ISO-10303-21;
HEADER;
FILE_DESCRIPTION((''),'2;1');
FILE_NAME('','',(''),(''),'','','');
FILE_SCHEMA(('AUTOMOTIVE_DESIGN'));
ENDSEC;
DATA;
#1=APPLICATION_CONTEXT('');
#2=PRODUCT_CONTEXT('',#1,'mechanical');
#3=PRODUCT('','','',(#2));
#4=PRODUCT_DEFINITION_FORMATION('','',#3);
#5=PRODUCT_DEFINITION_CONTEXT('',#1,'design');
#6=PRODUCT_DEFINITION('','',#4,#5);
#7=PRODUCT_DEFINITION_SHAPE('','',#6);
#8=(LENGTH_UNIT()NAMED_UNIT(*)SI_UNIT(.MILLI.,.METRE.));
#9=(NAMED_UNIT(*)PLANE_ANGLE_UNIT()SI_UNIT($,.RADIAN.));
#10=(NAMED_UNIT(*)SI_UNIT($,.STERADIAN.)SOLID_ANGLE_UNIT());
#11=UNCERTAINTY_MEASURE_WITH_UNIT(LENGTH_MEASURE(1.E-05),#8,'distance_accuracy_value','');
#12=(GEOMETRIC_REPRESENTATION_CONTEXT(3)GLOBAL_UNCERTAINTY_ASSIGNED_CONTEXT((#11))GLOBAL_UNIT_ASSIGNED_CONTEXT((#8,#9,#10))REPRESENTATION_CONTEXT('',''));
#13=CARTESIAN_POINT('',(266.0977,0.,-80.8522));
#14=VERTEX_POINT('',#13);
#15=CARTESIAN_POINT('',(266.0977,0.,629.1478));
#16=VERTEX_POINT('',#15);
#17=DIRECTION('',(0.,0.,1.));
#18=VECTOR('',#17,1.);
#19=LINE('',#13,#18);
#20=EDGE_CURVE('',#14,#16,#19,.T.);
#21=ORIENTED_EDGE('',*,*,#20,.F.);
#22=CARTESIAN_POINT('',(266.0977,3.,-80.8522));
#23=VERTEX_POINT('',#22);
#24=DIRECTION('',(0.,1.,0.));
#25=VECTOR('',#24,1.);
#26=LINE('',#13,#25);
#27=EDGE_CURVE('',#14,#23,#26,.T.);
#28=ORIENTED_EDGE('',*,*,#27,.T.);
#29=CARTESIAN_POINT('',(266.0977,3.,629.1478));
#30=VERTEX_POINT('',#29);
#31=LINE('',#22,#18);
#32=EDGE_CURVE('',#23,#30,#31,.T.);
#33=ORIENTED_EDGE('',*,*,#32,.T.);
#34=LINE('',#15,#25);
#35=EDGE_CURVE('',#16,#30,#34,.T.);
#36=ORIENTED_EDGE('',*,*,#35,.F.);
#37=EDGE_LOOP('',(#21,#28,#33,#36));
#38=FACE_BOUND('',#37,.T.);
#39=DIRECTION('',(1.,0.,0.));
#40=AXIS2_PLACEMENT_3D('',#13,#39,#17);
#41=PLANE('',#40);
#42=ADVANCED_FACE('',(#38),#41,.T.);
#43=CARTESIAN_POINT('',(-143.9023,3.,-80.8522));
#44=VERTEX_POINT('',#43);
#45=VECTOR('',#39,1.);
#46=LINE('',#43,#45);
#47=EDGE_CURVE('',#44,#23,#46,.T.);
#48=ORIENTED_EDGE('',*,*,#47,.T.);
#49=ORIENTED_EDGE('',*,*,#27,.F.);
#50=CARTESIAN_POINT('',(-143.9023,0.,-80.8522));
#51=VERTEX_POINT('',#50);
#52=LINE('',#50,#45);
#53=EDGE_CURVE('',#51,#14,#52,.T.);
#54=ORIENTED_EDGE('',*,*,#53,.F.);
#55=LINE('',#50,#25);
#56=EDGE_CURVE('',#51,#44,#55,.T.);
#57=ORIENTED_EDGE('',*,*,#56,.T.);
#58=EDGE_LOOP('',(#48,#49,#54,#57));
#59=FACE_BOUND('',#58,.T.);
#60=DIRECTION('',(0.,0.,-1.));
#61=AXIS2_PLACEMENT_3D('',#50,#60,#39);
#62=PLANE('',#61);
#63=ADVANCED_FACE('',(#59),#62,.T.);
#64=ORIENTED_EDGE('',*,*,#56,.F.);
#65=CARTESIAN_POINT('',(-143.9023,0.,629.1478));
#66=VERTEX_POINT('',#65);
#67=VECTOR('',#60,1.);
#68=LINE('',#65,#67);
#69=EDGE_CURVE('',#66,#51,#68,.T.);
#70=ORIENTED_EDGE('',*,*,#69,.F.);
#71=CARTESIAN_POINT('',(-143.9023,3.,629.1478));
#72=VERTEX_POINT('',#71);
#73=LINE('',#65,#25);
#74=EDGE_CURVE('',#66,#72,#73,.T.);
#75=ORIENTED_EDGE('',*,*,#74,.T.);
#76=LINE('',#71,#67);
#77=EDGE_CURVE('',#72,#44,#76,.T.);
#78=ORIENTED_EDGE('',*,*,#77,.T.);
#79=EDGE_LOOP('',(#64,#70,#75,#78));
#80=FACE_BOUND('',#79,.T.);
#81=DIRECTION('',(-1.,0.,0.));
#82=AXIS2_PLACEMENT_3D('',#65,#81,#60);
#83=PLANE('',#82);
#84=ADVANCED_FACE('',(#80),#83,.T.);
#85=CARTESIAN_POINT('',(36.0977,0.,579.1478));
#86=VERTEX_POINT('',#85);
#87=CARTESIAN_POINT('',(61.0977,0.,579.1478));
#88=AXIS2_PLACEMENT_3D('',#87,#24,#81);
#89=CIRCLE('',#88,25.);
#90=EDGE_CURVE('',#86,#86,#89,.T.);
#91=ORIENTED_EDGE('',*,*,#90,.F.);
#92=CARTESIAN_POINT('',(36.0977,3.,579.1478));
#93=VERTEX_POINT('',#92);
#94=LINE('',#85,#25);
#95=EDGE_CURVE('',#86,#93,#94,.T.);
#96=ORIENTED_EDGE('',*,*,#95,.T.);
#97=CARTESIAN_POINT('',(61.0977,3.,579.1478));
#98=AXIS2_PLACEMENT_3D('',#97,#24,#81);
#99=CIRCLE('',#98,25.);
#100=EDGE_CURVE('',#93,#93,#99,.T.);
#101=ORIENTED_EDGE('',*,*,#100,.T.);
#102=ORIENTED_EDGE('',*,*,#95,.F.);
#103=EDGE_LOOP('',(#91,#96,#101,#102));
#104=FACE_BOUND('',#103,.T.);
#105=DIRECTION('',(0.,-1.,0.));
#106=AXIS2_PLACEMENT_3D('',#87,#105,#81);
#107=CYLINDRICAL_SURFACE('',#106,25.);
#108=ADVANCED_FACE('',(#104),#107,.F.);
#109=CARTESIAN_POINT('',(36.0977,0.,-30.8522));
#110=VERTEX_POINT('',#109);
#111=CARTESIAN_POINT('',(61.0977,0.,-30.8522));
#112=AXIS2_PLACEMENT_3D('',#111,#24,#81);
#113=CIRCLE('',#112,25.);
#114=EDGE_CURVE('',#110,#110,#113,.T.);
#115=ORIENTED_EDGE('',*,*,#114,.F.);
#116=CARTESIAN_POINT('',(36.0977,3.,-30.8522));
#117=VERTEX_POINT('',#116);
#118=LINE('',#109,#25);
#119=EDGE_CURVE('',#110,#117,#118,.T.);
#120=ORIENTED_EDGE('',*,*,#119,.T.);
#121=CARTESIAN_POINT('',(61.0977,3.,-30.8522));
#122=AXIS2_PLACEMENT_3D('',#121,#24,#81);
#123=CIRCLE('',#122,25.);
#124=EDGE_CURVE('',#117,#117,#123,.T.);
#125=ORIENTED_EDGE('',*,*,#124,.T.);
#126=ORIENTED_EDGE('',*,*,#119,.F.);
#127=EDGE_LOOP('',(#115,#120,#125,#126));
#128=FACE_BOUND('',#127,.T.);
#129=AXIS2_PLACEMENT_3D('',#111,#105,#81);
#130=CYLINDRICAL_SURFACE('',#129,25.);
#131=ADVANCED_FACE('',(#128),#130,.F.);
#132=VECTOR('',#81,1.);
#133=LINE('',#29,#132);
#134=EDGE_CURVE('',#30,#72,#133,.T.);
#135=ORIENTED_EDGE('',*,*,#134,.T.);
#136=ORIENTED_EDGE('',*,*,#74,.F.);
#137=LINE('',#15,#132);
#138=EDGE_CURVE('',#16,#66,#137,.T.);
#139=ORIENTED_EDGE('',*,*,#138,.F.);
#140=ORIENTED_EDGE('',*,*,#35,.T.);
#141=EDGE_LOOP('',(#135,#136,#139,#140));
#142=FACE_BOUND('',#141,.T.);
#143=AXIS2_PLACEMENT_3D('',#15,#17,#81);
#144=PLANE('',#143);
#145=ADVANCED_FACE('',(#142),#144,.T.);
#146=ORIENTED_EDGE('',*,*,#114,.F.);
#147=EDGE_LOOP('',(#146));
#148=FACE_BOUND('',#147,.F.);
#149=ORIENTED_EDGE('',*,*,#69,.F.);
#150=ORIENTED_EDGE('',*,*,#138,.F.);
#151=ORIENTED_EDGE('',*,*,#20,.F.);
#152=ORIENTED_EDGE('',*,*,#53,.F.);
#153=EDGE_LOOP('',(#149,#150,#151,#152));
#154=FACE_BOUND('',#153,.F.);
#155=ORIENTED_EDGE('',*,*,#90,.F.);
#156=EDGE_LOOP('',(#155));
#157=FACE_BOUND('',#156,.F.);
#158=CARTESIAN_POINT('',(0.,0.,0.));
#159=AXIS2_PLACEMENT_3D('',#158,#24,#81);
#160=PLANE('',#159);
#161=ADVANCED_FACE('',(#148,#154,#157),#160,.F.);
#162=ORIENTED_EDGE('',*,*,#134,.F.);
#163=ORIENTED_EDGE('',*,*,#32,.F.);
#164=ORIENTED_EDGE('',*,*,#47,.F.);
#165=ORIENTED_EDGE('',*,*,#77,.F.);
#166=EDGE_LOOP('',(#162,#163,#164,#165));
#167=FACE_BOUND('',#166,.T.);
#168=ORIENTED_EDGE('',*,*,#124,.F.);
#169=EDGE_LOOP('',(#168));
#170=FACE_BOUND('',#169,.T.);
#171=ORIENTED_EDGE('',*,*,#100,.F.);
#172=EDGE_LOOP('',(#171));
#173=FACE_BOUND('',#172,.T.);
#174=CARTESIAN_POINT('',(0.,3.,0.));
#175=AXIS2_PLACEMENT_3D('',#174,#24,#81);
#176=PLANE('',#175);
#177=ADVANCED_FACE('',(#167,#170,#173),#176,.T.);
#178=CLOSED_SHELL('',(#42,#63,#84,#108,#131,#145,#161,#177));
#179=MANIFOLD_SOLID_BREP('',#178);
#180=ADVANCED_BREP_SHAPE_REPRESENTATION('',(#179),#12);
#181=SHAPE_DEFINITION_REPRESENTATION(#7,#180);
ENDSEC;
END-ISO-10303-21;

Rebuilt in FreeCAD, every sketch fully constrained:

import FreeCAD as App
import Part
import Sketcher

V = App.Vector

doc = App.newDocument("Part")
params = doc.addObject("Spreadsheet::Sheet", "Params")
for row, (alias, value) in enumerate([
    ("sketch1_diameter", "50 mm"),
    ("sketch1_width", "410 mm"),
    ("sketch1_height", "710 mm"),
    ("pad1_length", "3 mm"),
], start=1):
    params.set(f"A{row}", alias)
    params.set(f"B{row}", "=" + value)
    params.setAlias(f"B{row}", alias)

body = doc.addObject("PartDesign::Body", "Body")

# Sketch on XZ plane
sketch1 = doc.addObject("Sketcher::SketchObject", "Sketch")
body.addObject(sketch1)
sketch1.AttachmentSupport = (doc.XZ_Plane, [""])
sketch1.MapMode = "FlatFace"
sketch1.addGeometry(Part.LineSegment(V(-144, 629, 0), V(266, 629, 0)), False)
sketch1.addGeometry(Part.LineSegment(V(266, 629, 0), V(266, -81, 0)), False)
sketch1.addGeometry(Part.LineSegment(V(266, -81, 0), V(-144, -81, 0)), False)
sketch1.addGeometry(Part.LineSegment(V(-144, -81, 0), V(-144, 629, 0)), False)
sketch1.addGeometry(Part.Circle(V(61, -31, 0), V(0, 0, 1), 25), False)
sketch1.addGeometry(Part.Circle(V(61, 579, 0), V(0, 0, 1), 25), False)
sketch1.addConstraint(Sketcher.Constraint("Coincident", 0, 2, 1, 1))
sketch1.addConstraint(Sketcher.Constraint("Coincident", 1, 2, 2, 1))
sketch1.addConstraint(Sketcher.Constraint("Coincident", 2, 2, 3, 1))
sketch1.addConstraint(Sketcher.Constraint("Coincident", 3, 2, 0, 1))
sketch1.addConstraint(Sketcher.Constraint("Horizontal", 0))
sketch1.addConstraint(Sketcher.Constraint("Vertical", 1))
sketch1.addConstraint(Sketcher.Constraint("Horizontal", 2))
sketch1.addConstraint(Sketcher.Constraint("Vertical", 3))
sketch1.addConstraint(Sketcher.Constraint("Equal", 4, 5))
sketch1.addConstraint(Sketcher.Constraint("Vertical", 4, 3, 5, 3))
sketch1.addConstraint(Sketcher.Constraint("Diameter", 4, 50.0))
sketch1.addConstraint(Sketcher.Constraint("DistanceX", 0, 1, 0, 2, 410.0))
sketch1.addConstraint(Sketcher.Constraint("DistanceY", 1, 2, 1, 1, 710.0))
sketch1.addConstraint(Sketcher.Constraint("DistanceY", 5, 3, 0, 2, 50.0))
sketch1.addConstraint(Sketcher.Constraint("DistanceY", 1, 2, 4, 3, 50.0))
sketch1.addConstraint(Sketcher.Constraint("DistanceX", 5, 3, 0, 2, 205.0))
sketch1.addConstraint(Sketcher.Constraint("DistanceX", -1, 1, 4, 3, 61.0977))
sketch1.addConstraint(Sketcher.Constraint("DistanceY", 4, 3, -1, 1, 30.8522))
sketch1.setExpression("Constraints[10]", "Params.sketch1_diameter")
sketch1.setExpression("Constraints[11]", "Params.sketch1_width")
sketch1.setExpression("Constraints[12]", "Params.sketch1_height")
pad1 = doc.addObject("PartDesign::Pad", "Pad")
body.addObject(pad1)
pad1.Profile = sketch1
pad1.setExpression("Length", "Params.pad1_length")
pad1.Reversed = True

doc.recompute()
